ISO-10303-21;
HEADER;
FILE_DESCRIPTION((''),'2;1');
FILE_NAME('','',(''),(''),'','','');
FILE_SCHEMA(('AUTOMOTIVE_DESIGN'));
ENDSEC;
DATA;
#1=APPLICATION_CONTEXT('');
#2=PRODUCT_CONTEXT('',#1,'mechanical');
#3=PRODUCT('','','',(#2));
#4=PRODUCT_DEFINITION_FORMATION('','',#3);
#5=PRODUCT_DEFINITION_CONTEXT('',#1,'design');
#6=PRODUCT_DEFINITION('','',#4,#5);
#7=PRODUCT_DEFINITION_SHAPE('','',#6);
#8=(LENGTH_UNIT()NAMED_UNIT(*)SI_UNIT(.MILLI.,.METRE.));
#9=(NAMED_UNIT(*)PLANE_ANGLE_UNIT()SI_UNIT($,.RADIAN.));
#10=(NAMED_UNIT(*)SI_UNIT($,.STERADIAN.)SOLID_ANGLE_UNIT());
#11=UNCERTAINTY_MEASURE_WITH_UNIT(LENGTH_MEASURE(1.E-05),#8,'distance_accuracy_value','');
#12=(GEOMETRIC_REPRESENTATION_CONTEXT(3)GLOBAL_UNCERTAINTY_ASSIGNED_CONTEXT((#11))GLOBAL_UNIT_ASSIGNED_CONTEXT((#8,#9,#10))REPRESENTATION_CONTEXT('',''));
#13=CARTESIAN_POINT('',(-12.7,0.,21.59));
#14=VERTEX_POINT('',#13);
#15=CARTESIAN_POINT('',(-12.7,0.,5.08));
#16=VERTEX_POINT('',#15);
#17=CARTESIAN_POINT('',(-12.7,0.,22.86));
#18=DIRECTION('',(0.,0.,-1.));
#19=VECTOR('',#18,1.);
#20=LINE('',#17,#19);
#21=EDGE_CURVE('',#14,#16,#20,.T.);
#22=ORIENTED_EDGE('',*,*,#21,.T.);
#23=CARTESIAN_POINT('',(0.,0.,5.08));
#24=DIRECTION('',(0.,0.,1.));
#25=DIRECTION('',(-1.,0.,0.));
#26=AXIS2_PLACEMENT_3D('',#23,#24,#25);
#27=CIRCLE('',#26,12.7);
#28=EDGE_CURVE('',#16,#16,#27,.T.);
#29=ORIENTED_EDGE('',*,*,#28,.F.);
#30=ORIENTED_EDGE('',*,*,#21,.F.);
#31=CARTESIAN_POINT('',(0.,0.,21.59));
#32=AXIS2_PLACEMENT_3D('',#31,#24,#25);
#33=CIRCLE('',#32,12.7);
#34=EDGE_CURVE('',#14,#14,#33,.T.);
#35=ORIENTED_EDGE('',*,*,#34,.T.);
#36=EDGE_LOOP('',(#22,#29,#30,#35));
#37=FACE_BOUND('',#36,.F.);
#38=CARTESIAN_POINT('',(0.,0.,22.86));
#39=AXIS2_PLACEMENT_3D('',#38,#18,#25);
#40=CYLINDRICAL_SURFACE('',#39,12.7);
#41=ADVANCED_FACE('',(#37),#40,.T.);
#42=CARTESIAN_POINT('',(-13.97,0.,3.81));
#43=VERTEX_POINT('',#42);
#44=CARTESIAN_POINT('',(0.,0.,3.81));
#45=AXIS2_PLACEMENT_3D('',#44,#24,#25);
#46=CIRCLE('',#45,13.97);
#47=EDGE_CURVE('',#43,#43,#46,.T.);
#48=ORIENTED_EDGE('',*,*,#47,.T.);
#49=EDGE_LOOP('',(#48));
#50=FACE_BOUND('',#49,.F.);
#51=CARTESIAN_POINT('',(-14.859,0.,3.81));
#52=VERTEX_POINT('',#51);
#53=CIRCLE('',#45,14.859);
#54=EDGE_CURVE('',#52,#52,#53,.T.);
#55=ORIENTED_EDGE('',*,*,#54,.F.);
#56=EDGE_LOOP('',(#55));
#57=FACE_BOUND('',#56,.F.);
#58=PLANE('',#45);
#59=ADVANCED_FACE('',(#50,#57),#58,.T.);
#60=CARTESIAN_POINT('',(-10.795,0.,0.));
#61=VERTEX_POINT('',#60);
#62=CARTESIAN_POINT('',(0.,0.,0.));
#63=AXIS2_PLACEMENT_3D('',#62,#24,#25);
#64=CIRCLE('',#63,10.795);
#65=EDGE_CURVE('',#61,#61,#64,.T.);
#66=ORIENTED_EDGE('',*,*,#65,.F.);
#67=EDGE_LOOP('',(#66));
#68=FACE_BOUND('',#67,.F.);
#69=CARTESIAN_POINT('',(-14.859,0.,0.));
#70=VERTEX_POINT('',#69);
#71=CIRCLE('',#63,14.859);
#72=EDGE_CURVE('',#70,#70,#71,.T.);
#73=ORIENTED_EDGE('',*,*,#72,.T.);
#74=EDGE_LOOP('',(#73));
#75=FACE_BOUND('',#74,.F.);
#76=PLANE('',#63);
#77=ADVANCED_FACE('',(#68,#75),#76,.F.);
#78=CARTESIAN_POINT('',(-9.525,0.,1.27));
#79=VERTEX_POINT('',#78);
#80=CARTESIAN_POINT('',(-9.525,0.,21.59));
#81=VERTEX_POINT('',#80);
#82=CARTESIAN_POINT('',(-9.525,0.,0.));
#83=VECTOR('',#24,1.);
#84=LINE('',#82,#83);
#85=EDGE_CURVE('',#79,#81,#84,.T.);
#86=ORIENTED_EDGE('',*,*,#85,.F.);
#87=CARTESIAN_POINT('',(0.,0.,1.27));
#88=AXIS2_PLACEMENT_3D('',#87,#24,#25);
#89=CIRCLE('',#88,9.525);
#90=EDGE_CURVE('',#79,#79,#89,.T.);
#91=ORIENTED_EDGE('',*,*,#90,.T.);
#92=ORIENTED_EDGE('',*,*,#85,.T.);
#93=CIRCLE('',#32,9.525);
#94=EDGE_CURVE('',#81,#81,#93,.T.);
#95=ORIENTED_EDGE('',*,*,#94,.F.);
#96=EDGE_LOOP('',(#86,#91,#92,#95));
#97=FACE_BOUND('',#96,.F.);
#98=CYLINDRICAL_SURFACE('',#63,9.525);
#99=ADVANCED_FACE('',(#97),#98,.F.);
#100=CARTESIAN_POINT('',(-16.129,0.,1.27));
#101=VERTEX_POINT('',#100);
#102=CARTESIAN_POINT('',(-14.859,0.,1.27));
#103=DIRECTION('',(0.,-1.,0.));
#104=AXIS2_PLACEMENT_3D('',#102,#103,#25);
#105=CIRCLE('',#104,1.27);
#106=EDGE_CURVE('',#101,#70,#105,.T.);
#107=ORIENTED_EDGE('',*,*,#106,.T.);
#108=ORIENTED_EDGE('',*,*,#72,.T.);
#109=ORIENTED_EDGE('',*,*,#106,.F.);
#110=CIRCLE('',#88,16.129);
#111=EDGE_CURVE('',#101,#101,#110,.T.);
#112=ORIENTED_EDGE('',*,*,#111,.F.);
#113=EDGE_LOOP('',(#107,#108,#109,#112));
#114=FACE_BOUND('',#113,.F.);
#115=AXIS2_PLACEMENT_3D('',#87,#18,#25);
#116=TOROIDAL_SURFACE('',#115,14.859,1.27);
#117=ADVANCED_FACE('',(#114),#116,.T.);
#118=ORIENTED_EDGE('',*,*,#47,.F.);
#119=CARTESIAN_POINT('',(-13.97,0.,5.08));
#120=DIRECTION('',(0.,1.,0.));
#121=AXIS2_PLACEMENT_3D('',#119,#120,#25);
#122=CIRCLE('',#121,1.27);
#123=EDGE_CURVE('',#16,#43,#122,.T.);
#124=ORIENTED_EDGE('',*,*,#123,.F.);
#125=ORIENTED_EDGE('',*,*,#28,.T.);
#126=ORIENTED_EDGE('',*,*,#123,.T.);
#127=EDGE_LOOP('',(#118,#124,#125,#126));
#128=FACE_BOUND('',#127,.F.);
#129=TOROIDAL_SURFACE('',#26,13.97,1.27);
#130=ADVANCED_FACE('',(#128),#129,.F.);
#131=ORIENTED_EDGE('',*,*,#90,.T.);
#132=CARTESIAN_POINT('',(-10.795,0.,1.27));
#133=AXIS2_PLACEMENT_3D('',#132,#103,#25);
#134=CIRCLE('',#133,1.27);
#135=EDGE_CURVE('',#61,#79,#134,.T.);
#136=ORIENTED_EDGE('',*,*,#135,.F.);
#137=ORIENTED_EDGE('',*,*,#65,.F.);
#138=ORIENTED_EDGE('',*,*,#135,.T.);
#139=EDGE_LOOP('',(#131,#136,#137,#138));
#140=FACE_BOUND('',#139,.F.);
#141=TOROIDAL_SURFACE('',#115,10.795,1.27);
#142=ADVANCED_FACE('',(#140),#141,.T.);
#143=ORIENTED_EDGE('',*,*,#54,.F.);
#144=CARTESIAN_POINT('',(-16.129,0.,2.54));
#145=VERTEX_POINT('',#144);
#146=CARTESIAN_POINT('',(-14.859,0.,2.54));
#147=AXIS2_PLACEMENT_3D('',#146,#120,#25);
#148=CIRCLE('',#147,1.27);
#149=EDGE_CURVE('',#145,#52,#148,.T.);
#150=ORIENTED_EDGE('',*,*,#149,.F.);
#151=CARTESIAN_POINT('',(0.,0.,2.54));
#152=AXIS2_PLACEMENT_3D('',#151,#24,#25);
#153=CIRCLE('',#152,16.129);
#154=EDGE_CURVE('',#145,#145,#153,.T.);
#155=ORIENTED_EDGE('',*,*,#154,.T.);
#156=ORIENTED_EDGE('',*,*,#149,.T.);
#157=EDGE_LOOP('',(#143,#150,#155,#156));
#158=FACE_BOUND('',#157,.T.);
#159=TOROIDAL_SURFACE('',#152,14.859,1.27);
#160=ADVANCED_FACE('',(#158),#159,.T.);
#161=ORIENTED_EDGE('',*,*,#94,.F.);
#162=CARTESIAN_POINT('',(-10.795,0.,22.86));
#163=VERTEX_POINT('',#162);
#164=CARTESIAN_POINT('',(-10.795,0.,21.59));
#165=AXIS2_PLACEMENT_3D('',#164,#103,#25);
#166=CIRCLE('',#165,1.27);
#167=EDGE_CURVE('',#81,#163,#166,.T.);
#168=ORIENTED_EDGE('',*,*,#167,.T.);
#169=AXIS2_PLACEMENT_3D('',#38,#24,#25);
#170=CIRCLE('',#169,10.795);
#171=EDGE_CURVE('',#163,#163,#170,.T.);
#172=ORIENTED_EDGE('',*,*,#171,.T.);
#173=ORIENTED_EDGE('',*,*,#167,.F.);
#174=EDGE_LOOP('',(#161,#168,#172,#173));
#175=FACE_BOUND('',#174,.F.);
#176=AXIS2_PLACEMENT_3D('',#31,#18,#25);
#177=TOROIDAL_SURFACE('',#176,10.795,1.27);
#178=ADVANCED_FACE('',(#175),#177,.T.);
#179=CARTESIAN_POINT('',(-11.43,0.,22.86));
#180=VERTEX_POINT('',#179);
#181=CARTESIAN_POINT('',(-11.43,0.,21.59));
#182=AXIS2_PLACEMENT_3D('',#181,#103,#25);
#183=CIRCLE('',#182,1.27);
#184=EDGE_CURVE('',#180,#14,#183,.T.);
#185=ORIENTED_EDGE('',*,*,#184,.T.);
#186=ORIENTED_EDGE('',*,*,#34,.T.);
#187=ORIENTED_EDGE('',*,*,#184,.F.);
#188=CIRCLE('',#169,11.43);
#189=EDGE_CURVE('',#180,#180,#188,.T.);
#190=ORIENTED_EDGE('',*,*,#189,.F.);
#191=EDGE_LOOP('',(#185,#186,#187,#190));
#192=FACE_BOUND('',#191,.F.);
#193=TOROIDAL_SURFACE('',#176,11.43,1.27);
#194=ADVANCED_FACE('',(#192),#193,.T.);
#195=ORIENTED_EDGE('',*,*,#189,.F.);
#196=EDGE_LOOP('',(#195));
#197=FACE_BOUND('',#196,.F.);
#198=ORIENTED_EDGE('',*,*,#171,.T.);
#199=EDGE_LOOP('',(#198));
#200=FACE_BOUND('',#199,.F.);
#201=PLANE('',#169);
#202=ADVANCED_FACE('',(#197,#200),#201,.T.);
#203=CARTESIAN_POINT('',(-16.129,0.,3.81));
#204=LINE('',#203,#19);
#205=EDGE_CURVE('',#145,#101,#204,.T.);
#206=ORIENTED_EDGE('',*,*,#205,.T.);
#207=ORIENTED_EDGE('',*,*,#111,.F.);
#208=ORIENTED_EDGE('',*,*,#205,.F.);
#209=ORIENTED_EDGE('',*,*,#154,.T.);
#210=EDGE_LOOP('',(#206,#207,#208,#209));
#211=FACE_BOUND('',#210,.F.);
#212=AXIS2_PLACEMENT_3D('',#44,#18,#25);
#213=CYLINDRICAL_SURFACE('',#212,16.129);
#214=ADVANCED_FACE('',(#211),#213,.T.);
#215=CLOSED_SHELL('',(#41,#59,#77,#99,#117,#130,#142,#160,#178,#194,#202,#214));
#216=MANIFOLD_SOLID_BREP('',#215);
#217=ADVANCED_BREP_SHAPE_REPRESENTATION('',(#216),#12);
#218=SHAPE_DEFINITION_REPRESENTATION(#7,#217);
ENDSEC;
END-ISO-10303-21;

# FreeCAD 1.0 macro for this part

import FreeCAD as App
import Part
import Sketcher

V = App.Vector
Q = App.Units.Quantity


def edges_at(feature, points):
    """Names of the edges that pass closest to the given points."""
    edges = feature.Shape.Edges
    near = lambda p: min(range(len(edges)), key=lambda i: edges[i].distToShape(Part.Vertex(*p))[0])
    return sorted({f"Edge{near(p) + 1}" for p in points})

doc = App.newDocument("Part")
body = doc.addObject("PartDesign::Body", "Body")

sketch1 = body.newObject("Sketcher::SketchObject", "Sketch")
sketch1.AttachmentSupport = (doc.getObject("XZ_Plane"), [""])
sketch1.MapMode = "FlatFace"
sketch1.addGeometry([
    Part.LineSegment(V(-16.1, 3.8, 0), V(-16.1, 0, 0)),
    Part.LineSegment(V(-16.1, 0, 0), V(-9.5, 0, 0)),
    Part.LineSegment(V(-9.5, 0, 0), V(-9.5, 22.9, 0)),
    Part.LineSegment(V(-9.5, 22.9, 0), V(-12.7, 22.9, 0)),
    Part.LineSegment(V(-12.7, 22.9, 0), V(-12.7, 3.8, 0)),
    Part.LineSegment(V(-12.7, 3.8, 0), V(-16.1, 3.8, 0)),
], False)
sketch1.addConstraint([
    Sketcher.Constraint("Coincident", 0, 2, 1, 1),
    Sketcher.Constraint("Coincident", 1, 2, 2, 1),
    Sketcher.Constraint("Coincident", 2, 2, 3, 1),
    Sketcher.Constraint("Coincident", 3, 2, 4, 1),
    Sketcher.Constraint("Coincident", 4, 2, 5, 1),
    Sketcher.Constraint("Coincident", 5, 2, 0, 1),
    Sketcher.Constraint("Vertical", 0),
    Sketcher.Constraint("Horizontal", 1),
    Sketcher.Constraint("Vertical", 2),
    Sketcher.Constraint("Horizontal", 3),
    Sketcher.Constraint("Vertical", 4),
    Sketcher.Constraint("Horizontal", 5),
    Sketcher.Constraint("PointOnObject", 0, 2, -1),
    Sketcher.Constraint("DistanceY", 2, 1, 2, 2, Q("0.9 in")),
    Sketcher.Constraint("DistanceX", 1, 1, 1, 2, Q("0.26 in")),
    Sketcher.Constraint("DistanceY", 0, 2, 0, 1, Q("0.15 in")),
    Sketcher.Constraint("DistanceX", 3, 2, -1, 1, Q("0.5 in")),
    Sketcher.Constraint("DistanceX", 3, 2, 3, 1, Q("0.125 in")),
])
revolution = body.newObject("PartDesign::Revolution", "Revolution")
revolution.Profile = sketch1
revolution.ReferenceAxis = (sketch1, ["V_Axis"])
revolution.Angle = 360
doc.recompute()

fillet = body.newObject("PartDesign::Fillet", "Fillet")
fillet.Base = (revolution, edges_at(revolution, [
    (12.7, 0, 22.86),
    (9.525, 0, 22.86),
    (12.7, 0, 3.81),
    (16.129, 0, 3.81),
    (16.129, 0, 0),
    (9.525, 0, 0),
]))
fillet.Radius = Q("0.05 in")

doc.recompute()
